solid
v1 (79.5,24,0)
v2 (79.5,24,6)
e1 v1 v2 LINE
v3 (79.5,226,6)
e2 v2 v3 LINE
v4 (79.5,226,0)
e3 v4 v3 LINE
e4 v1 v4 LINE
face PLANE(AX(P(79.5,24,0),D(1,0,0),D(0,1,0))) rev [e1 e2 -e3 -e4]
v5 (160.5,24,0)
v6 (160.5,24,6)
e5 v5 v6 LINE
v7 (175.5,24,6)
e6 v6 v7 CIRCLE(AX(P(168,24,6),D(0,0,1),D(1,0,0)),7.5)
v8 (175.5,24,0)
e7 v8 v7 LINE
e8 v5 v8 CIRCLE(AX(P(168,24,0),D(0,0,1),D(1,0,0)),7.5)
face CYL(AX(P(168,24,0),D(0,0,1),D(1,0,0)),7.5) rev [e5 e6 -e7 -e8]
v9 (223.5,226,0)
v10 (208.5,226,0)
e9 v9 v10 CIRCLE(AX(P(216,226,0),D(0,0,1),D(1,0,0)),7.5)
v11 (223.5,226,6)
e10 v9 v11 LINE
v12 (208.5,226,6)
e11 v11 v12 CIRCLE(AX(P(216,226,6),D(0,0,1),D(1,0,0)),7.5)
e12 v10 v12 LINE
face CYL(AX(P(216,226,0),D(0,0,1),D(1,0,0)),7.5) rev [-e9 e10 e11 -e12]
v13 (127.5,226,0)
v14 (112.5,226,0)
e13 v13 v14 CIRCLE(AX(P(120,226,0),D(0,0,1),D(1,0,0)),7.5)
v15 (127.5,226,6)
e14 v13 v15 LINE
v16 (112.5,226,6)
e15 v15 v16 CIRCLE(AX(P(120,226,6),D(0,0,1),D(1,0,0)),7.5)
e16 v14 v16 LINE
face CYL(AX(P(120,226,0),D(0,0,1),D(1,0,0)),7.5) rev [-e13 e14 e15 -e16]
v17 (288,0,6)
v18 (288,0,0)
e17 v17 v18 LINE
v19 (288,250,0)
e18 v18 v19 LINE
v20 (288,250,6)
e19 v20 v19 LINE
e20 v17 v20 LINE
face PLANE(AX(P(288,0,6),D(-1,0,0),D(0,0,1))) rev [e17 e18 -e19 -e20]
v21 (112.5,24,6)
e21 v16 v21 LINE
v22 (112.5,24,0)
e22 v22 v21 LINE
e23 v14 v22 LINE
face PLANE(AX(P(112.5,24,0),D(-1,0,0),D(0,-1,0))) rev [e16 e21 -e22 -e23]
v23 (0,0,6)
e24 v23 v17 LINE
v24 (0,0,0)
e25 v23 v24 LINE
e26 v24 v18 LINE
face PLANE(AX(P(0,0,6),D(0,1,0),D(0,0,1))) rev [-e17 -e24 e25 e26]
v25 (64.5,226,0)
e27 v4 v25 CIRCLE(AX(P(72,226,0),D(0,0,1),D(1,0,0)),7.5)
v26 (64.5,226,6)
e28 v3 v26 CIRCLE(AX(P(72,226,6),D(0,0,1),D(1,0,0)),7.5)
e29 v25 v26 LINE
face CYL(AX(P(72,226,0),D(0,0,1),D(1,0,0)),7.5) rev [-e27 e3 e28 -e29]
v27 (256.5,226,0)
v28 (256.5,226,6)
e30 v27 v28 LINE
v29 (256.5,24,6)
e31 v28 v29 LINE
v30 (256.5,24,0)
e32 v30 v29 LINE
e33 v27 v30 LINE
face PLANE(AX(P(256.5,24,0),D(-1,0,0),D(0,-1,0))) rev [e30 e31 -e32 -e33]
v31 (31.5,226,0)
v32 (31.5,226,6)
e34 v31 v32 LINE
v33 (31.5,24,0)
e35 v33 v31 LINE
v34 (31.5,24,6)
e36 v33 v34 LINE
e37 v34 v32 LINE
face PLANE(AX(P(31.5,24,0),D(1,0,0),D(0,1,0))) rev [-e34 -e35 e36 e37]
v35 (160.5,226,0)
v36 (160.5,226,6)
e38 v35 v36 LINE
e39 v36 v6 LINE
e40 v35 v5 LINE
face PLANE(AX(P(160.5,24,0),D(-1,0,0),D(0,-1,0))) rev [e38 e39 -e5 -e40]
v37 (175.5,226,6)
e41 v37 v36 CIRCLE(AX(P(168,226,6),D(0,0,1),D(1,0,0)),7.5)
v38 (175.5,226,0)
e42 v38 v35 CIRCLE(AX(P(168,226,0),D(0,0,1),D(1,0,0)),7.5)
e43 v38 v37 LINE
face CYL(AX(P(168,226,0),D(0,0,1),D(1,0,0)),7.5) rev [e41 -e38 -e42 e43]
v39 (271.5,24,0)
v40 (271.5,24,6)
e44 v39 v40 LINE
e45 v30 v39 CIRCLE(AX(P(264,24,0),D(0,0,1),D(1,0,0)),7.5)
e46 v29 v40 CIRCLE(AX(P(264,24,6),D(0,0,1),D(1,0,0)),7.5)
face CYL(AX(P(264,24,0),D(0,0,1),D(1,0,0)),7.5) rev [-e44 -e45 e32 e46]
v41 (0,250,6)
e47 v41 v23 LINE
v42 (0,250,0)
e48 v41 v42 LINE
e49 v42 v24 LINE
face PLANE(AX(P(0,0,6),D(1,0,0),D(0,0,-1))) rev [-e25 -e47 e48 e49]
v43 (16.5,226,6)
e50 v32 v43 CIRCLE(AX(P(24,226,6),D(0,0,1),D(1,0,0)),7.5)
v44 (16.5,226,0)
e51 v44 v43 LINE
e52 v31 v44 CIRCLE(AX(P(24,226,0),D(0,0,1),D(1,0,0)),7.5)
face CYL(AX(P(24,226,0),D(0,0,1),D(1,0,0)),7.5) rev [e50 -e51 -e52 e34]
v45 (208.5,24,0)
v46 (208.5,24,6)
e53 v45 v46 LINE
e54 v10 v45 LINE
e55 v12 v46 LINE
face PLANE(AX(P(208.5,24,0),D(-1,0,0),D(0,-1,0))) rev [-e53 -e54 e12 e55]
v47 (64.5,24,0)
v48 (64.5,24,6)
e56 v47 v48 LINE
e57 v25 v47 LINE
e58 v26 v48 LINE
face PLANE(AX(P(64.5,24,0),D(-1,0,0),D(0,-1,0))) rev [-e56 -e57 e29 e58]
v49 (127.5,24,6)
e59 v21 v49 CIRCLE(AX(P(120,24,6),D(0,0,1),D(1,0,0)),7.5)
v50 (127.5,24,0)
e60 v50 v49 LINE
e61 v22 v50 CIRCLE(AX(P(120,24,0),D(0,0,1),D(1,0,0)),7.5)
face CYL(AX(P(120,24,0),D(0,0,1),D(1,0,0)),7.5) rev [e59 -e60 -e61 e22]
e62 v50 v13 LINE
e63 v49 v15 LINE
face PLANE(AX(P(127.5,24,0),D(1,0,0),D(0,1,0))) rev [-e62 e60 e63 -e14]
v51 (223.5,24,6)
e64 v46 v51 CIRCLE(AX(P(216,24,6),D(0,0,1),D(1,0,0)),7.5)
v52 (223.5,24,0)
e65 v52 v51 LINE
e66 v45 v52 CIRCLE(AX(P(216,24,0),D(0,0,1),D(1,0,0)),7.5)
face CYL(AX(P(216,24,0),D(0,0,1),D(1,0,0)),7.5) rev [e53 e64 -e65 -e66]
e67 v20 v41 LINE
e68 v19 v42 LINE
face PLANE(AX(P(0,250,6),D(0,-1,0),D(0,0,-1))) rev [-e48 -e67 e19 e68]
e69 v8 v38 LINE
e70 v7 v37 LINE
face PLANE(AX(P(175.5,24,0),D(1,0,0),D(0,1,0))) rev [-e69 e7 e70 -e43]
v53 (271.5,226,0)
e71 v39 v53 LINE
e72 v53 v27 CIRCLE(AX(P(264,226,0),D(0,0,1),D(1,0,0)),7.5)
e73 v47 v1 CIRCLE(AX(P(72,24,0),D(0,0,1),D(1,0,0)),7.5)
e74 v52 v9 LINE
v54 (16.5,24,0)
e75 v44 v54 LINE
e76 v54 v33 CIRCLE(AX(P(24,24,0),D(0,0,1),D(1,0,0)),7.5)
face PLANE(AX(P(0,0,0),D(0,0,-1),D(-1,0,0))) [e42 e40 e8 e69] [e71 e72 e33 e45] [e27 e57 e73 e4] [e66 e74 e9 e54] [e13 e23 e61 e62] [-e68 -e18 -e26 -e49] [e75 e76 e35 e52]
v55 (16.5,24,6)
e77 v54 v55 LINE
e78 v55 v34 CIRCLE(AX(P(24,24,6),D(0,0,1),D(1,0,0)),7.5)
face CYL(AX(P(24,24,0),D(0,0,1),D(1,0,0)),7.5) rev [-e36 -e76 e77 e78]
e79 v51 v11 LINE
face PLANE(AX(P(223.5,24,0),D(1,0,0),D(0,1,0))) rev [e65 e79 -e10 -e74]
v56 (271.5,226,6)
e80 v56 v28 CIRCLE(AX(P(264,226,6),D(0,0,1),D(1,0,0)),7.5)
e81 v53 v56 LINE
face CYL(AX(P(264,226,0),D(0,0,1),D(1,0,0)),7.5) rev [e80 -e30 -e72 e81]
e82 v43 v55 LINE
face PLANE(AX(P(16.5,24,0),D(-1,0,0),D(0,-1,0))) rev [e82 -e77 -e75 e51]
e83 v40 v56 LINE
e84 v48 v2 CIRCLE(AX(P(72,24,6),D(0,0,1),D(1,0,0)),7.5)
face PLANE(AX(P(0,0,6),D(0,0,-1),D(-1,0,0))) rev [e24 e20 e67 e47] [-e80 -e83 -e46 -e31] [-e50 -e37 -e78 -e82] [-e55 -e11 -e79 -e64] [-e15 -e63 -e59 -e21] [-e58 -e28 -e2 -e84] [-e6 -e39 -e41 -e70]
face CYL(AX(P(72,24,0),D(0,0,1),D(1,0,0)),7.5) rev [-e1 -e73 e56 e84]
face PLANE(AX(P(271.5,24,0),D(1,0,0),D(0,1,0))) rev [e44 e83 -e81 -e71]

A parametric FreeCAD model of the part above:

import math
import FreeCAD as App
import Part
import Sketcher

V = App.Vector

doc = App.newDocument("Part")
body = doc.addObject("PartDesign::Body", "Body")

sketch1 = doc.addObject("Sketcher::SketchObject", "Sketch")
body.addObject(sketch1)
sketch1.AttachmentSupport = (doc.XY_Plane, [""])
sketch1.MapMode = "FlatFace"
sketch1.addGeometry([
    Part.LineSegment(V(0, 250, 0), V(0, 0, 0)),
    Part.LineSegment(V(0, 0, 0), V(288, 0, 0)),
    Part.LineSegment(V(288, 0, 0), V(288, 250, 0)),
    Part.LineSegment(V(288, 250, 0), V(0, 250, 0)),
], False)
sketch1.addConstraint([
    Sketcher.Constraint("Coincident", 0, 2, 1, 1),
    Sketcher.Constraint("Coincident", 1, 2, 2, 1),
    Sketcher.Constraint("Coincident", 2, 2, 3, 1),
    Sketcher.Constraint("Coincident", 3, 2, 0, 1),
    Sketcher.Constraint("Vertical", 0),
    Sketcher.Constraint("Horizontal", 1),
    Sketcher.Constraint("Vertical", 2),
    Sketcher.Constraint("Horizontal", 3),
    Sketcher.Constraint("Coincident", 0, 2, -1, 1),
    Sketcher.Constraint("DistanceX", 1, 1, 1, 2, 288.0),
    Sketcher.Constraint("DistanceY", 0, 2, 0, 1, 250.0),
])
pad1 = doc.addObject("PartDesign::Pad", "Pad")
body.addObject(pad1)
pad1.Profile = sketch1
pad1.Length = 6

sketch2 = doc.addObject("Sketcher::SketchObject", "Sketch001")
body.addObject(sketch2)
sketch2.AttachmentSupport = (doc.XY_Plane, [""])
sketch2.MapMode = "FlatFace"
sketch2.AttachmentOffset = App.Placement(V(0, 0, 6), App.Rotation())
sketch2.addGeometry([
    Part.LineSegment(V(16, 226, 0), V(16, 24, 0)),
    Part.ArcOfCircle(Part.Circle(V(24, 24, 0), V(0, 0, 1), 8), math.radians(180), math.radians(360)),
    Part.LineSegment(V(32, 24, 0), V(32, 226, 0)),
    Part.ArcOfCircle(Part.Circle(V(24, 226, 0), V(0, 0, 1), 8), math.radians(0), math.radians(180)),
], False)
sketch2.addConstraint([
    Sketcher.Constraint("Tangent", 0, 2, 1, 1),
    Sketcher.Constraint("Tangent", 1, 2, 2, 1),
    Sketcher.Constraint("Tangent", 2, 2, 3, 1),
    Sketcher.Constraint("Tangent", 3, 2, 0, 1),
    Sketcher.Constraint("Vertical", 0),
    Sketcher.Constraint("Vertical", 2),
    Sketcher.Constraint("Radius", 1, 7.5),
    Sketcher.Constraint("DistanceY", 0, 2, 0, 1, 202.0),
    Sketcher.Constraint("DistanceX", -1, 1, 1, 3, 24.0),
    Sketcher.Constraint("DistanceY", -1, 1, 1, 3, 24.0),
])
pocket1 = doc.addObject("PartDesign::Pocket", "Pocket")
body.addObject(pocket1)
pocket1.Profile = sketch2
pocket1.Type = "ThroughAll"
doc.recompute()

linearpattern = doc.addObject("PartDesign::LinearPattern", "LinearPattern")
body.addObject(linearpattern)
linearpattern.Originals = [pocket1]
linearpattern.Direction = (doc.X_Axis, [""])
linearpattern.Mode = "offset"
linearpattern.Offset = 48
linearpattern.Occurrences = 6
body.Tip = linearpattern

doc.recompute()
